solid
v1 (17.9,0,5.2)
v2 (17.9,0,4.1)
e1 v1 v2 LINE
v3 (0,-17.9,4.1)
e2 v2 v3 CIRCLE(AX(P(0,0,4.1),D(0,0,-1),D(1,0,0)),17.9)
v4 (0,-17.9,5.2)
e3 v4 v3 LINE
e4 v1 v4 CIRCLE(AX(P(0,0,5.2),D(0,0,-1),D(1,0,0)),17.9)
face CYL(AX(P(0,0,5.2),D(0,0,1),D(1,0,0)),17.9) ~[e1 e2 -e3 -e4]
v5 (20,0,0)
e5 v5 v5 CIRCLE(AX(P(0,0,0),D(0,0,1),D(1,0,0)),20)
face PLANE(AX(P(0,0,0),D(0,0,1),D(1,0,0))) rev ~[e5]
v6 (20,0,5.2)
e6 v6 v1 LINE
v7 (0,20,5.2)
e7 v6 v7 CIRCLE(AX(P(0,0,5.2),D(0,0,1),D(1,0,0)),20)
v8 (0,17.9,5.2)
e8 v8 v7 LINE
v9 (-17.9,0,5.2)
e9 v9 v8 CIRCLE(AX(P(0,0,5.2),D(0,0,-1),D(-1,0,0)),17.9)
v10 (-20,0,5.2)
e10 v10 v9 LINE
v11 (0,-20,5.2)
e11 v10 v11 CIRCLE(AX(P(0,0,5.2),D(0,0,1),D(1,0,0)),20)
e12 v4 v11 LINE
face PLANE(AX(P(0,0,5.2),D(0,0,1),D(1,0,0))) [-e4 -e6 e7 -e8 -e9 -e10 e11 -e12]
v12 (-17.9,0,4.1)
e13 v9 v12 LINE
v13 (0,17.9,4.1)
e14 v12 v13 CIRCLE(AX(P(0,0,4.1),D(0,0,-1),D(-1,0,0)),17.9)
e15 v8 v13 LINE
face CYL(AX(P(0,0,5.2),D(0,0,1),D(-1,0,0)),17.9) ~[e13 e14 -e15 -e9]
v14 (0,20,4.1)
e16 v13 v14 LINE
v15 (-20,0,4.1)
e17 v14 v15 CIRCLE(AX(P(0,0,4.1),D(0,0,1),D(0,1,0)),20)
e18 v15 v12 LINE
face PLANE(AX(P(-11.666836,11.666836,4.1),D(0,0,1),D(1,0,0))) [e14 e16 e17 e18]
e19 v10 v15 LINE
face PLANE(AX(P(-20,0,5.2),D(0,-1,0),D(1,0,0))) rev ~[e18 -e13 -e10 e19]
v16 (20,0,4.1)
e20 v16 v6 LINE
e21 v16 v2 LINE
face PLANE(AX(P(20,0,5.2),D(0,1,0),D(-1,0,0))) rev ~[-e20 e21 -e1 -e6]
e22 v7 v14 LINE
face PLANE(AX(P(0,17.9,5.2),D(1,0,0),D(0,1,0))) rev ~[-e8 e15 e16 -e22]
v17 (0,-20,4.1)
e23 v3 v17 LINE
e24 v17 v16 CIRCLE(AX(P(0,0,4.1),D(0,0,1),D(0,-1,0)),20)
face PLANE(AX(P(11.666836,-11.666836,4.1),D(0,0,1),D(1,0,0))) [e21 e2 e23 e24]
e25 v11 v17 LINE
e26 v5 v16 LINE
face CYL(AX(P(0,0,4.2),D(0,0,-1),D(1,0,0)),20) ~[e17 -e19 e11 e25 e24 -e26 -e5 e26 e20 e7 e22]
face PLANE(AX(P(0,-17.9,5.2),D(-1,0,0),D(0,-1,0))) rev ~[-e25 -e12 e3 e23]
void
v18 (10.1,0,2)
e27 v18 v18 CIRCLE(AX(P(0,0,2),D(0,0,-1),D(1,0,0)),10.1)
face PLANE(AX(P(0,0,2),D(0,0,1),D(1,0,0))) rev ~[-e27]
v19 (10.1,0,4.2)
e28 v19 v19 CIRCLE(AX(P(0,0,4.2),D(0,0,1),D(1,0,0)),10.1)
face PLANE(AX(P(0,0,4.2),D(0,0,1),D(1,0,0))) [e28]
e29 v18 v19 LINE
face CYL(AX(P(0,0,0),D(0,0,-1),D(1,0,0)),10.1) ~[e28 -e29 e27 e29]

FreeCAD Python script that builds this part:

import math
import FreeCAD as App
import Part
import Sketcher
Q = App.Units.Quantity

doc = App.newDocument("Part")
body = doc.addObject("PartDesign::Body", "Body")

# Sketch on XY plane
sketch1 = body.newObject("Sketcher::SketchObject", "Sketch")
sketch1.AttachmentSupport = (doc.getObject("XY_Plane"), [""])
sketch1.MapMode = "FlatFace"
sketch1.addGeometry(Part.Circle(App.Vector(0, 0, 0), App.Vector(0, 0, 1), 20), False)
sketch1.addConstraint([
    Sketcher.Constraint("Coincident", 0, 3, -1, 1),
    Sketcher.Constraint("Diameter", 0, Q("40 mm")),
])
pad1 = body.newObject("PartDesign::Pad", "Pad")
pad1.Profile = sketch1
pad1.Length = 2

# Sketch on XY plane
sketch2 = body.newObject("Sketcher::SketchObject", "Sketch001")
sketch2.AttachmentSupport = (doc.getObject("XY_Plane"), [""])
sketch2.MapMode = "FlatFace"
sketch2.addGeometry([
    Part.Circle(App.Vector(0, 0, 0), App.Vector(0, 0, 1), 20),
    Part.Circle(App.Vector(0, 0, 0), App.Vector(0, 0, 1), 10),
], False)
sketch2.addConstraint([
    Sketcher.Constraint("Coincident", 0, 3, -1, 1),
    Sketcher.Constraint("Coincident", 1, 3, -1, 1),
    Sketcher.Constraint("Diameter", 0, Q("40 mm")),
    Sketcher.Constraint("Diameter", 1, Q("20.2 mm")),
])
pad2 = body.newObject("PartDesign::Pad", "Pad001")
pad2.Profile = sketch2
pad2.Length = 4.2

# Sketch on XY plane
sketch3 = body.newObject("Sketcher::SketchObject", "Sketch002")
sketch3.AttachmentSupport = (doc.getObject("XY_Plane"), [""])
sketch3.MapMode = "FlatFace"
sketch3.AttachmentOffset = App.Placement(App.Vector(0, 0, 4.2), App.Rotation())
sketch3.addGeometry(Part.Circle(App.Vector(0, 0, 0), App.Vector(0, 0, 1), 20), False)
sketch3.addConstraint([
    Sketcher.Constraint("Coincident", 0, 3, -1, 1),
    Sketcher.Constraint("Diameter", 0, Q("40 mm")),
])
pad3 = body.newObject("PartDesign::Pad", "Pad002")
pad3.Profile = sketch3
pad3.Length = 1

# Sketch on XY plane
sketch4 = body.newObject("Sketcher::SketchObject", "Sketch003")
sketch4.AttachmentSupport = (doc.getObject("XY_Plane"), [""])
sketch4.MapMode = "FlatFace"
sketch4.AttachmentOffset = App.Placement(App.Vector(0, 0, 5.2), App.Rotation())
sketch4.addGeometry([
    Part.ArcOfCircle(Part.Circle(App.Vector(0, 0, 0), App.Vector(0, 0, 1), 20), math.radians(90), math.radians(180)),  # 0
    Part.LineSegment(App.Vector(-20, 0, 0), App.Vector(-17.9, 0, 0)),  # 1
    Part.ArcOfCircle(Part.Circle(App.Vector(0, 0, 0), App.Vector(0, 0, 1), 17.9), math.radians(90), math.radians(180)),  # 2
    Part.LineSegment(App.Vector(0, 17.9, 0), App.Vector(0, 20, 0)),  # 3
    Part.LineSegment(App.Vector(0, -17.9, 0), App.Vector(0, -20, 0)),  # 4
    Part.ArcOfCircle(Part.Circle(App.Vector(0, 0, 0), App.Vector(0, 0, 1), 20), math.radians(-90), math.radians(0)),  # 5
    Part.LineSegment(App.Vector(20, 0, 0), App.Vector(17.9, 0, 0)),  # 6
    Part.ArcOfCircle(Part.Circle(App.Vector(0, 0, 0), App.Vector(0, 0, 1), 17.9), math.radians(-90), math.radians(0)),  # 7
], False)
sketch4.addConstraint([
    Sketcher.Constraint("Coincident", 0, 2, 1, 1),
    Sketcher.Constraint("Coincident", 1, 2, 2, 2),
    Sketcher.Constraint("Coincident", 2, 1, 3, 1),
    Sketcher.Constraint("Coincident", 3, 2, 0, 1),
    Sketcher.Constraint("Coincident", 4, 2, 5, 1),
    Sketcher.Constraint("Coincident", 5, 2, 6, 1),
    Sketcher.Constraint("Coincident", 6, 2, 7, 2),
    Sketcher.Constraint("Coincident", 7, 1, 4, 1),
    Sketcher.Constraint("Horizontal", 1),
    Sketcher.Constraint("Vertical", 3),
    Sketcher.Constraint("Vertical", 4),
    Sketcher.Constraint("Horizontal", 6),
    Sketcher.Constraint("Coincident", 0, 3, -1, 1),
    Sketcher.Constraint("Coincident", 2, 3, -1, 1),
    Sketcher.Constraint("Coincident", 5, 3, -1, 1),
    Sketcher.Constraint("Coincident", 7, 3, -1, 1),
    Sketcher.Constraint("Equal", 0, 5),
    Sketcher.Constraint("Equal", 2, 7),
    Sketcher.Constraint("PointOnObject", 0, 2, -1),
    Sketcher.Constraint("PointOnObject", 2, 1, -2),
    Sketcher.Constraint("PointOnObject", 4, 2, -2),
    Sketcher.Constraint("PointOnObject", 5, 2, -1),
    Sketcher.Constraint("Radius", 0, Q("20 mm")),
    Sketcher.Constraint("Radius", 2, Q("17.9 mm")),
])
pocket1 = body.newObject("PartDesign::Pocket", "Pocket")
pocket1.Profile = sketch4
pocket1.Length = 1.1

doc.recompute()
